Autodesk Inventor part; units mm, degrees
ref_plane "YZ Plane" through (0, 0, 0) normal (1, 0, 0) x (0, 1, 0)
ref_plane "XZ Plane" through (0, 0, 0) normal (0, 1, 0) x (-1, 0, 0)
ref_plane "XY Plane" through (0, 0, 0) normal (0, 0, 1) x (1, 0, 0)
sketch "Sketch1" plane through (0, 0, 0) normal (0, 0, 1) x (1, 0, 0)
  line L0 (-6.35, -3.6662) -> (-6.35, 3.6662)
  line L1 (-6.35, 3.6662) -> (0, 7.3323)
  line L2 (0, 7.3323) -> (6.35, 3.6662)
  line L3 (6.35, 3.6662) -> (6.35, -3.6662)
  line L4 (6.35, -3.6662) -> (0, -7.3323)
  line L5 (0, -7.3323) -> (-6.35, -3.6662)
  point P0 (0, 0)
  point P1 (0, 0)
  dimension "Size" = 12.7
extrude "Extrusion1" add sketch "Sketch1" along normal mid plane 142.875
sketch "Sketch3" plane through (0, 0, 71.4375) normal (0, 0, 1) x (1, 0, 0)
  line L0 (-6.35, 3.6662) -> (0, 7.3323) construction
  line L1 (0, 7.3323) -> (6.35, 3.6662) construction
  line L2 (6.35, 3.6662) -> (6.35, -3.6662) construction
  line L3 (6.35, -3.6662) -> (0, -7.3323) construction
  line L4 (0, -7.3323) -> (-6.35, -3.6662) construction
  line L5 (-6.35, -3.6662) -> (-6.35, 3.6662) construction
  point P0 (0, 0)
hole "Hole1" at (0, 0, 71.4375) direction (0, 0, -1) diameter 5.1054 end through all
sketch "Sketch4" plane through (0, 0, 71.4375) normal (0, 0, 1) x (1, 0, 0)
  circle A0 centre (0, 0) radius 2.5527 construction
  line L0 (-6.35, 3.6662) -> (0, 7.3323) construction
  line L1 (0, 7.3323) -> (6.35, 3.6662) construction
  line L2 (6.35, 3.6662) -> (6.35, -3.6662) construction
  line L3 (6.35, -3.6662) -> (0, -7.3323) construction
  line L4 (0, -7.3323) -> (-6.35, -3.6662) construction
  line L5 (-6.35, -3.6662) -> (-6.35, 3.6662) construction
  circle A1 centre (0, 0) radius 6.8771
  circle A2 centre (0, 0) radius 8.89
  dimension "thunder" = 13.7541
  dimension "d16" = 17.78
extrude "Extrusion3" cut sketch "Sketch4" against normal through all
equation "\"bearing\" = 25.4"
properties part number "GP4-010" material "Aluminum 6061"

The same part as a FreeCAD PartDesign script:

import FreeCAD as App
import Part
import Sketcher

V = App.Vector
Q = App.Units.Quantity

doc = App.newDocument("Part")
params = doc.addObject("Spreadsheet::Sheet", "Params")
for row, (alias, value) in enumerate([
    ("pad1_length", "5.625 in"),
    ("sketch2_diameter", "0.201 in"),
    ("hole_diameter", "0.201 in"),
    ("sketch3_diameter", "0.7 in"),
], start=1):
    params.set(f"A{row}", alias)
    params.set(f"B{row}", "=" + value)
    params.setAlias(f"B{row}", alias)

body = doc.addObject("PartDesign::Body", "Body")

sketch1 = doc.addObject("Sketcher::SketchObject", "Sketch")
body.addObject(sketch1)
sketch1.AttachmentSupport = (doc.XY_Plane, [""])
sketch1.MapMode = "FlatFace"
sketch1.addGeometry(Part.LineSegment(V(-6.35, 3.6662, 0), V(-6.35, -3.6662, 0)), False)
sketch1.addGeometry(Part.LineSegment(V(-6.35, -3.6662, 0), V(0, -7.3323, 0)), False)
sketch1.addGeometry(Part.LineSegment(V(0, -7.3323, 0), V(6.35, -3.6662, 0)), False)
sketch1.addGeometry(Part.LineSegment(V(6.35, -3.6662, 0), V(6.35, 3.6662, 0)), False)
sketch1.addGeometry(Part.LineSegment(V(6.35, 3.6662, 0), V(0, 7.3323, 0)), False)
sketch1.addGeometry(Part.LineSegment(V(0, 7.3323, 0), V(-6.35, 3.6662, 0)), False)
sketch1.addConstraint(Sketcher.Constraint("Coincident", 0, 2, 1, 1))
sketch1.addConstraint(Sketcher.Constraint("Coincident", 1, 2, 2, 1))
sketch1.addConstraint(Sketcher.Constraint("Coincident", 2, 2, 3, 1))
sketch1.addConstraint(Sketcher.Constraint("Coincident", 3, 2, 4, 1))
sketch1.addConstraint(Sketcher.Constraint("Coincident", 4, 2, 5, 1))
sketch1.addConstraint(Sketcher.Constraint("Coincident", 5, 2, 0, 1))
sketch1.addConstraint(Sketcher.Constraint("Vertical", 0))
sketch1.addConstraint(Sketcher.Constraint("Vertical", 3))
sketch1.addConstraint(Sketcher.Constraint("Symmetric", 0, 2, 3, 2, -1, 1))
sketch1.addConstraint(Sketcher.Constraint("Symmetric", 1, 2, 4, 2, -1, 1))
sketch1.addConstraint(Sketcher.Constraint("PointOnObject", 1, 2, -2))
sketch1.addConstraint(Sketcher.Constraint("Parallel", 2, 5))
sketch1.addConstraint(Sketcher.Constraint("Horizontal", 0, 2, 2, 2))
sketch1.addConstraint(Sketcher.Constraint("DistanceX", 0, 2, 2, 2, Q("0.5 in")))
sketch1.addConstraint(Sketcher.Constraint("Angle", 1, Q("-29.9995 deg")))
sketch1.addConstraint(Sketcher.Constraint("DistanceY", 1, 2, 3, 2, Q("0.433 in")))
pad1 = doc.addObject("PartDesign::Pad", "Pad")
body.addObject(pad1)
pad1.Profile = sketch1
pad1.setExpression("Length", "Params.pad1_length")
pad1.Midplane = True

sketch2 = doc.addObject("Sketcher::SketchObject", "Sketch001")
body.addObject(sketch2)
sketch2.AttachmentSupport = (doc.XY_Plane, [""])
sketch2.MapMode = "FlatFace"
sketch2.AttachmentOffset = App.Placement(V(0, 0, 2.8125 * 25.4), App.Rotation())
sketch2.addGeometry(Part.Circle(V(0, 0, 0), V(0, 0, 1), 2.5527), False)
sketch2.addConstraint(Sketcher.Constraint("Coincident", 0, 3, -1, 1))
sketch2.addConstraint(Sketcher.Constraint("Diameter", 0, Q("0.201 in")))
sketch2.setExpression("Constraints[1]", "Params.sketch2_diameter")
doc.recompute()
hole = doc.addObject("PartDesign::Hole", "Hole")
body.addObject(hole)
hole.Profile = sketch2
hole.ThreadType = "None"
hole.setExpression("Diameter", "Params.hole_diameter")
hole.DepthType = "ThroughAll"

sketch3 = doc.addObject("Sketcher::SketchObject", "Sketch002")
body.addObject(sketch3)
sketch3.AttachmentSupport = (doc.XY_Plane, [""])
sketch3.MapMode = "FlatFace"
sketch3.AttachmentOffset = App.Placement(V(0, 0, 2.8125 * 25.4), App.Rotation())
sketch3.addGeometry(Part.Circle(V(0, 0, 0), V(0, 0, 1), 8.89), False)
sketch3.addGeometry(Part.Circle(V(0, 0, 0), V(0, 0, 1), 6.8771), False)
sketch3.addConstraint(Sketcher.Constraint("Coincident", 0, 3, -1, 1))
sketch3.addConstraint(Sketcher.Constraint("Coincident", 1, 3, -1, 1))
sketch3.addConstraint(Sketcher.Constraint("Diameter", 0, Q("0.7 in")))
sketch3.addConstraint(Sketcher.Constraint("Diameter", 1, Q("0.5415 in")))
sketch3.setExpression("Constraints[2]", "Params.sketch3_diameter")
pocket1 = doc.addObject("PartDesign::Pocket", "Pocket")
body.addObject(pocket1)
pocket1.Profile = sketch3
pocket1.Type = "ThroughAll"

doc.recompute()
